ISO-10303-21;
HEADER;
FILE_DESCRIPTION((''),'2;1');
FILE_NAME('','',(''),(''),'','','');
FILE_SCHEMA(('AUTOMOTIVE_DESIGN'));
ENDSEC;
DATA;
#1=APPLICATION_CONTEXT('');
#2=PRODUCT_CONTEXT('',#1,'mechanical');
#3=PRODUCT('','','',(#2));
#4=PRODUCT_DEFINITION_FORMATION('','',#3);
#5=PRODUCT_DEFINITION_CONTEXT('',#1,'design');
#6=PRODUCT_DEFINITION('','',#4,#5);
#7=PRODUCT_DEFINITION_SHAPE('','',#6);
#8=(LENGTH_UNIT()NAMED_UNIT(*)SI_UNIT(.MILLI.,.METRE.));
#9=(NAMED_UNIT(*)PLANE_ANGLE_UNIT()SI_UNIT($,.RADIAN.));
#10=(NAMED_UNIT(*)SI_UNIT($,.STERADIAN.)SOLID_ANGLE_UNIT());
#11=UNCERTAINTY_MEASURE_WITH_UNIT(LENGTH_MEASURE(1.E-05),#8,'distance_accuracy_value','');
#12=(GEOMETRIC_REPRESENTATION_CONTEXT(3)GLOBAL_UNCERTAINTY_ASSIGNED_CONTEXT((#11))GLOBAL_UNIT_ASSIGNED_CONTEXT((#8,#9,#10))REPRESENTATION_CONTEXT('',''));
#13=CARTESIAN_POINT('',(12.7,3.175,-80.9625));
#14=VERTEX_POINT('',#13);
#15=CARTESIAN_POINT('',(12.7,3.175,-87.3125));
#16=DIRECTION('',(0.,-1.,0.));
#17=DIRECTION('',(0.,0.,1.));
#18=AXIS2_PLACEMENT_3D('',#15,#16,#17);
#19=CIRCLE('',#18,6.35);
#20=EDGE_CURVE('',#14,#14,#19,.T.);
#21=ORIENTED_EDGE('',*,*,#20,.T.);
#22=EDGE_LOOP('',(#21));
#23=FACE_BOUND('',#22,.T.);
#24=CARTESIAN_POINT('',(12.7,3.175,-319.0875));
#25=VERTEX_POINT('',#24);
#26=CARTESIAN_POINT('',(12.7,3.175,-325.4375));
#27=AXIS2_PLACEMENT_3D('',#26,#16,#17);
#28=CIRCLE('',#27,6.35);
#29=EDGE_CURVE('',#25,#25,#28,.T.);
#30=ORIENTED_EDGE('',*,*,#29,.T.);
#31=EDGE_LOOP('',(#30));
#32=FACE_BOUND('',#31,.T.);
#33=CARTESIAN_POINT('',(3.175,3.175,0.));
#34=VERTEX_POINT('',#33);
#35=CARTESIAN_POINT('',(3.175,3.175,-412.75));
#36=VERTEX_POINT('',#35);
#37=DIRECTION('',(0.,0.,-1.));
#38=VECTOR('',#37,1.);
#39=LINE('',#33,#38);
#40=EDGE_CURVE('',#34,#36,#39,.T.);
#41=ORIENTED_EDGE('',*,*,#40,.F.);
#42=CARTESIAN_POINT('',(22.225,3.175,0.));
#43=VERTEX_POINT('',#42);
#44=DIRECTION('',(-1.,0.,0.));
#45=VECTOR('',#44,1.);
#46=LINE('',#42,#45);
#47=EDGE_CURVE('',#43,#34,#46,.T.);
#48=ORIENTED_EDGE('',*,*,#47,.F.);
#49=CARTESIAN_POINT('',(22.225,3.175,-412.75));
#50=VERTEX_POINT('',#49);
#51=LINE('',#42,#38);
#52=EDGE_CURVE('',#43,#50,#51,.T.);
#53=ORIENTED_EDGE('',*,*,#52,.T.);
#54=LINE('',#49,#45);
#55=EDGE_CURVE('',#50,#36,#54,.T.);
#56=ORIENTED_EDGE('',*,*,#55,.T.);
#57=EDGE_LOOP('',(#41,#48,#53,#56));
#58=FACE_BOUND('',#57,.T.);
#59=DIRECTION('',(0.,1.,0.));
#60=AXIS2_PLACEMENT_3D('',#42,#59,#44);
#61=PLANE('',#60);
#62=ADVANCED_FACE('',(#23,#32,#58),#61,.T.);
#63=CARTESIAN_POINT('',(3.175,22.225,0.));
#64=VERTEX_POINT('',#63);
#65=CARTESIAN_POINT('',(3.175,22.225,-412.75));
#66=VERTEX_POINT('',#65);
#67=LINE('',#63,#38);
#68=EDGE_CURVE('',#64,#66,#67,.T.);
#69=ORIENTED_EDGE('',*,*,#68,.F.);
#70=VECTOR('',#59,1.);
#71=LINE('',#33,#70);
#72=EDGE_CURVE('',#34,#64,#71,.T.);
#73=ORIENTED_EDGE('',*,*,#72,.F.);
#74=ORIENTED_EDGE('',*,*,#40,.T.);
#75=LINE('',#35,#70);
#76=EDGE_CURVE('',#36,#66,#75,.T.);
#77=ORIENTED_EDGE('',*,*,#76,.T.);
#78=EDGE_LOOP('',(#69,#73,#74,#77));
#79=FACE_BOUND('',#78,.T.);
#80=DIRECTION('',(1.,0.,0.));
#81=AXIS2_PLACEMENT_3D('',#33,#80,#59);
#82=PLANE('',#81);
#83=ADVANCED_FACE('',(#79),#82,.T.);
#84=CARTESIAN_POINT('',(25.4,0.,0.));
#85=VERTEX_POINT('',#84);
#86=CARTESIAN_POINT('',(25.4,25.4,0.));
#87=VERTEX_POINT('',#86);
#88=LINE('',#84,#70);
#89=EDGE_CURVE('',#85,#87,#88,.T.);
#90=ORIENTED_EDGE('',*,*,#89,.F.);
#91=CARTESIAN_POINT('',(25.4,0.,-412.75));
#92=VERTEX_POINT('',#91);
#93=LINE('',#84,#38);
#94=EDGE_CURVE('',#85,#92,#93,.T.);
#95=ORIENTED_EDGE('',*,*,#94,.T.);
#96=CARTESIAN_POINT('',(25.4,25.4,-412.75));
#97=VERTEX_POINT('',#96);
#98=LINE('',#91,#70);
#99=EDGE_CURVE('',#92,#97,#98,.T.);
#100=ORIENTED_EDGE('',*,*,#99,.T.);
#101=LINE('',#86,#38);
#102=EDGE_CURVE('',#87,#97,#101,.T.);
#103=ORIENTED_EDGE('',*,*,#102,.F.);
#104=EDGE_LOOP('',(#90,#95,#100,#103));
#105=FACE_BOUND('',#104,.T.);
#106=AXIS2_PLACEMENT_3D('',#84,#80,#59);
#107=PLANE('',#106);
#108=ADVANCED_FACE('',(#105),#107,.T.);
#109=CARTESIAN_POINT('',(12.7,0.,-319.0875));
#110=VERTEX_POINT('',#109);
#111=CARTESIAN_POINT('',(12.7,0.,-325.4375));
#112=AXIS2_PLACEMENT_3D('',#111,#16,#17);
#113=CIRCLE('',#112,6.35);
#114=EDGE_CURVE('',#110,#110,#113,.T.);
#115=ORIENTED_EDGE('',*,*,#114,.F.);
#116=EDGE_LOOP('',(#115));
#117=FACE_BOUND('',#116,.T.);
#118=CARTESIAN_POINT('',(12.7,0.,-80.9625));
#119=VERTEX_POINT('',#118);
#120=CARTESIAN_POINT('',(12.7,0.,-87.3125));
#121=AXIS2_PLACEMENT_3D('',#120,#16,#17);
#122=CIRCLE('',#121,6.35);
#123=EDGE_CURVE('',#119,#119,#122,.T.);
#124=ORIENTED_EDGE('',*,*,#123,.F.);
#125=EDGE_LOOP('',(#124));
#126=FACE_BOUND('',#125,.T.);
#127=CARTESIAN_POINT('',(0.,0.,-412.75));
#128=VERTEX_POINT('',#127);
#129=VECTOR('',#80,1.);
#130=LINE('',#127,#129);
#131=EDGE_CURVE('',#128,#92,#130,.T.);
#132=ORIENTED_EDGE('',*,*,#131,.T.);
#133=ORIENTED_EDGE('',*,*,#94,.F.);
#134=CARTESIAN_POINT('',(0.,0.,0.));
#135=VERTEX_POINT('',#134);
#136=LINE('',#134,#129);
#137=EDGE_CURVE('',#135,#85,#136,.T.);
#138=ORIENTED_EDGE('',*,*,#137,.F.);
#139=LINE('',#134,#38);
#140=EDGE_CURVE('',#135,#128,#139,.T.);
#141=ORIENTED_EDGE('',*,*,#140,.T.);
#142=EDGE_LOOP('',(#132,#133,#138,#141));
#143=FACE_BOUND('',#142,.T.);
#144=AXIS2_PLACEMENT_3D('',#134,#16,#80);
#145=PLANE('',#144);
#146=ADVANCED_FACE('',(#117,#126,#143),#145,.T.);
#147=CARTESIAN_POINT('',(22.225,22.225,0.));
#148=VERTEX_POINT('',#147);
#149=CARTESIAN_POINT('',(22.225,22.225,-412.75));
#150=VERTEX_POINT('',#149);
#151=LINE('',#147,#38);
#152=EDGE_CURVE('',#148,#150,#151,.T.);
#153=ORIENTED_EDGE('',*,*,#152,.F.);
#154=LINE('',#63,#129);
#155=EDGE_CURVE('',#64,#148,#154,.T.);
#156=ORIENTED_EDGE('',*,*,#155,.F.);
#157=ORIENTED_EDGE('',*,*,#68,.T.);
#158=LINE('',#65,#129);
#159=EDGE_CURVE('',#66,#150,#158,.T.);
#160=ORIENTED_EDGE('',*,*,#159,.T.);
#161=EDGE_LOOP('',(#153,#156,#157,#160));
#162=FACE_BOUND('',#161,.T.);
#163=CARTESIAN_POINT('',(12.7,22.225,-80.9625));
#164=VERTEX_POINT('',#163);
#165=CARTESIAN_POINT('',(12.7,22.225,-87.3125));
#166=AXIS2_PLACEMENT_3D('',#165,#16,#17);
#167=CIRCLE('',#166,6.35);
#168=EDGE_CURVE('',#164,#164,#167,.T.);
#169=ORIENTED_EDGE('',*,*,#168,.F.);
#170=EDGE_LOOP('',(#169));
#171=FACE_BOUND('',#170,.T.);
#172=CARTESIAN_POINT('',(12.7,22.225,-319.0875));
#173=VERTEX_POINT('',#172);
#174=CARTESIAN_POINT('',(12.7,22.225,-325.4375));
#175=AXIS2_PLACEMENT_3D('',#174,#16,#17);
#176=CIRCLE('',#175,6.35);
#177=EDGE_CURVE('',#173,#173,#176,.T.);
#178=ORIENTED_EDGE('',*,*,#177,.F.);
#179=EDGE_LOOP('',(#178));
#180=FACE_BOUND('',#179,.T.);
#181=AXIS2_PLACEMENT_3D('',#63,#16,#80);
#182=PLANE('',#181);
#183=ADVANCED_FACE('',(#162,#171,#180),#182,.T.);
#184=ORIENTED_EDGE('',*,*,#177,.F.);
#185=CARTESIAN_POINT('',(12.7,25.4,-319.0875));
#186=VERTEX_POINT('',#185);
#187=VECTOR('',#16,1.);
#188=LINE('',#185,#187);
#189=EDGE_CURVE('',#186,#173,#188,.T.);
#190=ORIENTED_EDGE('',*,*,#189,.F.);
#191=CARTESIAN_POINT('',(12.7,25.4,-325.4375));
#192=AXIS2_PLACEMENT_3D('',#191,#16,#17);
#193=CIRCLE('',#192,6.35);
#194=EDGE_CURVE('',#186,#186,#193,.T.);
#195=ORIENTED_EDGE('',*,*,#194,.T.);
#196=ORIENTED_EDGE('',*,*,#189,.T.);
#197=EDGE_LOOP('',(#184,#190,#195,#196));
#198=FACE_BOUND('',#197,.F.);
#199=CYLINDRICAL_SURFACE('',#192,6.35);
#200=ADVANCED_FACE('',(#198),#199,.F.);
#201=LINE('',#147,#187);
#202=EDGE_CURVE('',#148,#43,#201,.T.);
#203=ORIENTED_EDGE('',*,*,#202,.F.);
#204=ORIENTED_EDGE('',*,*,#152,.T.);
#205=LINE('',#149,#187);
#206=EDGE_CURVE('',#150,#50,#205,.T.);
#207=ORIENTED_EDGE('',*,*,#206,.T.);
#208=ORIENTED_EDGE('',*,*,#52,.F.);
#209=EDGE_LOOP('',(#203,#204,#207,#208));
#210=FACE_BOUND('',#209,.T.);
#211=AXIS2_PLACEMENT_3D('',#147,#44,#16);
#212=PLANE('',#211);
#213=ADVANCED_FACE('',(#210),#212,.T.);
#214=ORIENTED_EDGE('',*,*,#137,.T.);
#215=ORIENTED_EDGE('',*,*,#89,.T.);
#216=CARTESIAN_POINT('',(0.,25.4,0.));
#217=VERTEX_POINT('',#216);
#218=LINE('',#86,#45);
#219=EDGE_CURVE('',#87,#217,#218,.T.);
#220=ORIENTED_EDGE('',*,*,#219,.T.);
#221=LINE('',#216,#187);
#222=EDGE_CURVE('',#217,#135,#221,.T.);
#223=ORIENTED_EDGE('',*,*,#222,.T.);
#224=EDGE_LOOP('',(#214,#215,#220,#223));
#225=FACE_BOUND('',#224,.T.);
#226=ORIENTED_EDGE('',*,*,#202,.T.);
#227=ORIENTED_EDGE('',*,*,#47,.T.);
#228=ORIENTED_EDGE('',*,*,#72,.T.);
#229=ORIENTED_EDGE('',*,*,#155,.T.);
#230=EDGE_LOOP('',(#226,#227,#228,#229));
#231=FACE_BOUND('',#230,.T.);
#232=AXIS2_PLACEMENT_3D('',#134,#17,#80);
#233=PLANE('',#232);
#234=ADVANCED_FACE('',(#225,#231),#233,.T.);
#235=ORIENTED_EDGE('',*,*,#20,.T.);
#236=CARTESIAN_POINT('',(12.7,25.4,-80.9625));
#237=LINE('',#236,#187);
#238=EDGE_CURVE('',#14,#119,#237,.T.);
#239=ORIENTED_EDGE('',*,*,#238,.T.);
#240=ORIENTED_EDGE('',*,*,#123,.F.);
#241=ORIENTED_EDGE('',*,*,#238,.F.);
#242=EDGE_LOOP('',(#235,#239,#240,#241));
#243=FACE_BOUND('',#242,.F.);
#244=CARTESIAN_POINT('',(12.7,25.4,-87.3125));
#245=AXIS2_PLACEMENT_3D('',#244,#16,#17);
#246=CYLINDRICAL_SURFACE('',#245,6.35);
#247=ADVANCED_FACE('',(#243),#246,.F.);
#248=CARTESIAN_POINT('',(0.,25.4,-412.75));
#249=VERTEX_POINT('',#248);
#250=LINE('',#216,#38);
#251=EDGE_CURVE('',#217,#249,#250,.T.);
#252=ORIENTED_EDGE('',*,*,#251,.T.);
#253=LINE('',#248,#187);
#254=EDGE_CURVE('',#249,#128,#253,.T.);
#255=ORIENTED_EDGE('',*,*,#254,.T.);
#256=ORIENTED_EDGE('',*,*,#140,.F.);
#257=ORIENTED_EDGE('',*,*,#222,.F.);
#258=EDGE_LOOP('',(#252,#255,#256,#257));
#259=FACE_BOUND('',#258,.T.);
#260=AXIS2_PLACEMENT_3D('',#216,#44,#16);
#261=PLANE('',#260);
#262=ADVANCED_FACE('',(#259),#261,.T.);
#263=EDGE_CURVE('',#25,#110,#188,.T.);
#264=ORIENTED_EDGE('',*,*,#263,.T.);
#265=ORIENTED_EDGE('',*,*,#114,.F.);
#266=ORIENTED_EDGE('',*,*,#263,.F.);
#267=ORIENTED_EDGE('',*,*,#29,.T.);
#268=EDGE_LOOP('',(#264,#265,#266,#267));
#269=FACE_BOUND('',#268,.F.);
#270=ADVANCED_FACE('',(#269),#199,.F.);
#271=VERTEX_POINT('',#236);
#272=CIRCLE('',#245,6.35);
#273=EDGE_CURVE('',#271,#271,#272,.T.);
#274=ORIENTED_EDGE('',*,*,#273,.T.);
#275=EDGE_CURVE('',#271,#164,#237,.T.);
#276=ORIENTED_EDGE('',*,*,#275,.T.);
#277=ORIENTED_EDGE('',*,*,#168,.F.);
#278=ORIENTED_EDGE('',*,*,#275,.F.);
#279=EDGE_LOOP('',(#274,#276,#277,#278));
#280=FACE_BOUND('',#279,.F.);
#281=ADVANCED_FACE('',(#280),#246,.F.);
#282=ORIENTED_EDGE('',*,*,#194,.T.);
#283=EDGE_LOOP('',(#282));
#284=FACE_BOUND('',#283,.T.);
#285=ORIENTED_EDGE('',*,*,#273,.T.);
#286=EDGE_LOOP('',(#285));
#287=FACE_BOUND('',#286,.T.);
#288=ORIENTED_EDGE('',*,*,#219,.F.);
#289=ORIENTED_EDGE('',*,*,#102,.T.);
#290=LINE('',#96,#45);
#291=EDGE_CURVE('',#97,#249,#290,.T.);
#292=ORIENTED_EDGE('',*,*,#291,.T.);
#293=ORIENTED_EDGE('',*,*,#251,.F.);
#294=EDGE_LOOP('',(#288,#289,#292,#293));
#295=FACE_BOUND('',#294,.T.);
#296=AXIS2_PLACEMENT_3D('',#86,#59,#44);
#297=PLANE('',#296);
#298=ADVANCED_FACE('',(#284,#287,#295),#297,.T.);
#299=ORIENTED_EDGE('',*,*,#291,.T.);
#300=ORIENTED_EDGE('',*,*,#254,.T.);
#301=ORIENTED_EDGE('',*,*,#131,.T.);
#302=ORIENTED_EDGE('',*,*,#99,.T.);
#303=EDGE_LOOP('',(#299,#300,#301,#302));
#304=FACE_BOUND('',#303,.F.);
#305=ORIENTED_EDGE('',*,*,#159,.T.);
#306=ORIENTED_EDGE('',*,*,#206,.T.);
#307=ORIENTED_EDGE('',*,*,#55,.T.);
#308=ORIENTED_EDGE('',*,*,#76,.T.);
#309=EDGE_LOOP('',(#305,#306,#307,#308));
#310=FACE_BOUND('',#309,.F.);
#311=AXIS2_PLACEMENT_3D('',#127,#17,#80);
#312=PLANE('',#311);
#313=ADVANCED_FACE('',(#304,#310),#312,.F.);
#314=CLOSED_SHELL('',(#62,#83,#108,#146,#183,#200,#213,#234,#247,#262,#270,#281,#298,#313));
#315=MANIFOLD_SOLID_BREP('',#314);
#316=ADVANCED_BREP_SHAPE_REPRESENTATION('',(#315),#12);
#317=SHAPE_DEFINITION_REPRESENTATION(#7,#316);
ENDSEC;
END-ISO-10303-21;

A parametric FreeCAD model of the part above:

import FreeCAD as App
import Part
import Sketcher
Q = App.Units.Quantity


def add_polygon(sketch, points):
    """Adds a closed chain of lines whose ends are joined by coincident constraints."""
    first, n = sketch.GeometryCount, len(points)
    for a, b in zip(points, points[1:] + points[:1]):
        sketch.addGeometry(Part.LineSegment(App.Vector(*a, 0), App.Vector(*b, 0)), False)
    for i in range(n):
        sketch.addConstraint(Sketcher.Constraint("Coincident", first + i, 2, first + (i + 1) % n, 1))

doc = App.newDocument("Part")
body = doc.addObject("PartDesign::Body", "Body")

# Sketch on XY plane
sketch1 = doc.addObject("Sketcher::SketchObject", "Sketch")
body.addObject(sketch1)
sketch1.AttachmentSupport = (doc.XY_Plane, [""])
sketch1.MapMode = "FlatFace"
add_polygon(sketch1, [(0, 25), (0, 0), (25, 0), (25, 25)])  # lines 0-3
add_polygon(sketch1, [(3, 3), (3, 22), (22, 22), (22, 3)])  # lines 4-7
sketch1.addConstraint([
    Sketcher.Constraint("Vertical", 0),
    Sketcher.Constraint("Horizontal", 1),
    Sketcher.Constraint("Vertical", 2),
    Sketcher.Constraint("Horizontal", 3),
    Sketcher.Constraint("Vertical", 4),
    Sketcher.Constraint("Horizontal", 5),
    Sketcher.Constraint("Vertical", 6),
    Sketcher.Constraint("Horizontal", 7),
    Sketcher.Constraint("Coincident", 0, 2, -1, 1),
    Sketcher.Constraint("Equal", 3, 0),
    Sketcher.Constraint("Equal", 7, 4),
    Sketcher.Constraint("DistanceX", 1, 1, 1, 2, Q("1 in")),
    Sketcher.Constraint("DistanceX", -1, 1, 4, 2, Q("0.125 in")),
    Sketcher.Constraint("DistanceY", -1, 1, 6, 2, Q("0.125 in")),
    Sketcher.Constraint("DistanceY", 4, 2, 3, 2, Q("0.125 in")),
])
pad1 = doc.addObject("PartDesign::Pad", "Pad")
body.addObject(pad1)
pad1.Profile = sketch1
pad1.Length = Q("16.25 in")
pad1.Reversed = True

# Sketch on XZ plane
sketch2 = doc.addObject("Sketcher::SketchObject", "Sketch001")
body.addObject(sketch2)
sketch2.AttachmentSupport = (doc.XZ_Plane, [""])
sketch2.MapMode = "FlatFace"
sketch2.AttachmentOffset = App.Placement(App.Vector(0, 0, -1 * 25.4), App.Rotation())
sketch2.addGeometry([
    Part.Circle(App.Vector(13, -87, 0), App.Vector(0, 0, 1), 6),
    Part.Circle(App.Vector(13, -325, 0), App.Vector(0, 0, 1), 6),
], False)
sketch2.addConstraint([
    Sketcher.Constraint("Equal", 0, 1),
    Sketcher.Constraint("Vertical", 0, 3, 1, 3),
    Sketcher.Constraint("Diameter", 0, Q("0.5 in")),
    Sketcher.Constraint("DistanceX", -1, 1, 0, 3, Q("0.5 in")),
    Sketcher.Constraint("DistanceY", 0, 3, -1, 1, Q("3.4375 in")),
    Sketcher.Constraint("DistanceY", 1, 3, -1, 1, Q("12.8125 in")),
])
doc.recompute()
hole = doc.addObject("PartDesign::Hole", "Hole")
body.addObject(hole)
hole.Profile = sketch2
hole.ThreadType = "None"
hole.Diameter = Q("0.5 in")
hole.DepthType = "Dimension"
hole.Depth = Q("1 in")
hole.DrillPoint = "Angled"
hole.DrillPointAngle = 118
hole.Reversed = True

doc.recompute()
